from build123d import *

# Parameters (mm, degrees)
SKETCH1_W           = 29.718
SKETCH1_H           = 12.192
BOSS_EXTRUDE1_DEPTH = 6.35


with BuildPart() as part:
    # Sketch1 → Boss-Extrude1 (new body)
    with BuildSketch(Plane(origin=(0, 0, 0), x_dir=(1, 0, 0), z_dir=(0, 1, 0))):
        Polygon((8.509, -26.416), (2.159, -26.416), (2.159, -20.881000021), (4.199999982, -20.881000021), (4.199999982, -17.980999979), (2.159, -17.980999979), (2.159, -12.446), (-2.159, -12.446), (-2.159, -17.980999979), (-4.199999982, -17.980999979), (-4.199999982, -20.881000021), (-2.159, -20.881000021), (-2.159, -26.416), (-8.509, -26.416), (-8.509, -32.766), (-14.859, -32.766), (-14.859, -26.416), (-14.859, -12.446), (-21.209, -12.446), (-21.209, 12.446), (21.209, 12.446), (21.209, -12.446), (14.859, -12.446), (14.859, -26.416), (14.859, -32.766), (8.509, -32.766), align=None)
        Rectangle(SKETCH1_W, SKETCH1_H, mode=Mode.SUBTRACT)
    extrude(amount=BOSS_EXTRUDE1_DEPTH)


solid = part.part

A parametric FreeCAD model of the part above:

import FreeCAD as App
import Part
import Sketcher
from FreeCAD import Vector
Q = App.Units.Quantity


def add_polygon(sketch, points):
    """Adds a closed chain of lines whose ends are joined by coincident constraints."""
    first, n = sketch.GeometryCount, len(points)
    for a, b in zip(points, points[1:] + points[:1]):
        sketch.addGeometry(Part.LineSegment(App.Vector(*a, 0), App.Vector(*b, 0)), False)
    for i in range(n):
        sketch.addConstraint(Sketcher.Constraint("Coincident", first + i, 2, first + (i + 1) % n, 1))

doc = App.newDocument("Part")
body = doc.addObject("PartDesign::Body", "Body")

sketch1 = doc.addObject("Sketcher::SketchObject", "Sketch")
body.addObject(sketch1)
sketch1.AttachmentSupport = (doc.XZ_Plane, [""])
sketch1.MapMode = "FlatFace"
add_polygon(sketch1, [(2.159, 26.416), (8.509, 26.416), (8.509, 32.766), (14.859, 32.766), (14.859, 12.446), (21.209, 12.446), (21.209, -12.446), (-21.209, -12.446), (-21.209, 12.446), (-14.859, 12.446), (-14.859, 32.766), (-8.509, 32.766), (-8.509, 26.416), (-2.159, 26.416), (-2.159, 20.881), (-4.2, 20.881), (-4.2, 17.981), (-2.159, 17.981), (-2.159, 12.446), (2.159, 12.446), (2.159, 17.981), (4.2, 17.981), (4.2, 20.881), (2.159, 20.881)])
add_polygon(sketch1, [(-14.859, 6.096), (-14.859, -6.096), (14.859, -6.096), (14.859, 6.096)])
sketch1.addConstraint(Sketcher.Constraint("Horizontal", 0))
sketch1.addConstraint(Sketcher.Constraint("Vertical", 1))
sketch1.addConstraint(Sketcher.Constraint("Horizontal", 2))
sketch1.addConstraint(Sketcher.Constraint("Vertical", 3))
sketch1.addConstraint(Sketcher.Constraint("Horizontal", 4))
sketch1.addConstraint(Sketcher.Constraint("Vertical", 5))
sketch1.addConstraint(Sketcher.Constraint("Horizontal", 6))
sketch1.addConstraint(Sketcher.Constraint("Vertical", 7))
sketch1.addConstraint(Sketcher.Constraint("Horizontal", 8))
sketch1.addConstraint(Sketcher.Constraint("Vertical", 9))
sketch1.addConstraint(Sketcher.Constraint("Horizontal", 10))
sketch1.addConstraint(Sketcher.Constraint("Vertical", 11))
sketch1.addConstraint(Sketcher.Constraint("Horizontal", 12))
sketch1.addConstraint(Sketcher.Constraint("Vertical", 13))
sketch1.addConstraint(Sketcher.Constraint("Horizontal", 14))
sketch1.addConstraint(Sketcher.Constraint("Vertical", 15))
sketch1.addConstraint(Sketcher.Constraint("Horizontal", 16))
sketch1.addConstraint(Sketcher.Constraint("Vertical", 17))
sketch1.addConstraint(Sketcher.Constraint("Horizontal", 18))
sketch1.addConstraint(Sketcher.Constraint("Vertical", 19))
sketch1.addConstraint(Sketcher.Constraint("Horizontal", 20))
sketch1.addConstraint(Sketcher.Constraint("Vertical", 21))
sketch1.addConstraint(Sketcher.Constraint("Horizontal", 22))
sketch1.addConstraint(Sketcher.Constraint("Vertical", 23))
sketch1.addConstraint(Sketcher.Constraint("Vertical", 24))
sketch1.addConstraint(Sketcher.Constraint("Horizontal", 25))
sketch1.addConstraint(Sketcher.Constraint("Vertical", 26))
sketch1.addConstraint(Sketcher.Constraint("Horizontal", 27))
sketch1.addConstraint(Sketcher.Constraint("Symmetric", 4, 2, 6, 2, -1, 1))
sketch1.addConstraint(Sketcher.Constraint("Symmetric", 24, 2, 26, 2, -1, 1))
sketch1.addConstraint(Sketcher.Constraint("Symmetric", 3, 2, 8, 2, -2))
sketch1.addConstraint(Sketcher.Constraint("Symmetric", 1, 2, 10, 2, -2))
sketch1.addConstraint(Sketcher.Constraint("Symmetric", 16, 2, 19, 2, -2))
sketch1.addConstraint(Sketcher.Constraint("Symmetric", 14, 2, 21, 2, -2))
sketch1.addConstraint(Sketcher.Constraint("Symmetric", 12, 2, 23, 2, -2))
sketch1.addConstraint(Sketcher.Constraint("Horizontal", 8, 2, 17, 2))
sketch1.addConstraint(Sketcher.Constraint("Vertical", 13, 2, 16, 2))
sketch1.addConstraint(Sketcher.Constraint("Vertical", 9, 2, 24, 2))
sketch1.addConstraint(Sketcher.Constraint("Equal", 0, 2))
sketch1.addConstraint(Sketcher.Constraint("Equal", 2, 4))
sketch1.addConstraint(Sketcher.Constraint("Equal", 12, 1))
sketch1.addConstraint(Sketcher.Constraint("Equal", 13, 17))
sketch1.addConstraint(Sketcher.Constraint("DistanceY", 3, 2, 3, 1, Q("0.8 in")))
sketch1.addConstraint(Sketcher.Constraint("DistanceX", 0, 1, 0, 2, Q("0.25 in")))
sketch1.addConstraint(Sketcher.Constraint("DistanceX", 6, 2, 6, 1, Q("1.67 in")))
sketch1.addConstraint(Sketcher.Constraint("DistanceY", 5, 2, 5, 1, Q("0.98 in")))
sketch1.addConstraint(Sketcher.Constraint("DistanceY", 24, 2, 24, 1, Q("0.48 in")))
sketch1.addConstraint(Sketcher.Constraint("DistanceX", 14, 2, 14, 1, Q("2.041 mm")))
sketch1.addConstraint(Sketcher.Constraint("DistanceY", 13, 2, 13, 1, Q("5.535 mm")))
pad1 = doc.addObject("PartDesign::Pad", "Pad")
body.addObject(pad1)
pad1.Profile = sketch1
pad1.Length = Q("0.25 in")
pad1.Reversed = True

doc.recompute()
